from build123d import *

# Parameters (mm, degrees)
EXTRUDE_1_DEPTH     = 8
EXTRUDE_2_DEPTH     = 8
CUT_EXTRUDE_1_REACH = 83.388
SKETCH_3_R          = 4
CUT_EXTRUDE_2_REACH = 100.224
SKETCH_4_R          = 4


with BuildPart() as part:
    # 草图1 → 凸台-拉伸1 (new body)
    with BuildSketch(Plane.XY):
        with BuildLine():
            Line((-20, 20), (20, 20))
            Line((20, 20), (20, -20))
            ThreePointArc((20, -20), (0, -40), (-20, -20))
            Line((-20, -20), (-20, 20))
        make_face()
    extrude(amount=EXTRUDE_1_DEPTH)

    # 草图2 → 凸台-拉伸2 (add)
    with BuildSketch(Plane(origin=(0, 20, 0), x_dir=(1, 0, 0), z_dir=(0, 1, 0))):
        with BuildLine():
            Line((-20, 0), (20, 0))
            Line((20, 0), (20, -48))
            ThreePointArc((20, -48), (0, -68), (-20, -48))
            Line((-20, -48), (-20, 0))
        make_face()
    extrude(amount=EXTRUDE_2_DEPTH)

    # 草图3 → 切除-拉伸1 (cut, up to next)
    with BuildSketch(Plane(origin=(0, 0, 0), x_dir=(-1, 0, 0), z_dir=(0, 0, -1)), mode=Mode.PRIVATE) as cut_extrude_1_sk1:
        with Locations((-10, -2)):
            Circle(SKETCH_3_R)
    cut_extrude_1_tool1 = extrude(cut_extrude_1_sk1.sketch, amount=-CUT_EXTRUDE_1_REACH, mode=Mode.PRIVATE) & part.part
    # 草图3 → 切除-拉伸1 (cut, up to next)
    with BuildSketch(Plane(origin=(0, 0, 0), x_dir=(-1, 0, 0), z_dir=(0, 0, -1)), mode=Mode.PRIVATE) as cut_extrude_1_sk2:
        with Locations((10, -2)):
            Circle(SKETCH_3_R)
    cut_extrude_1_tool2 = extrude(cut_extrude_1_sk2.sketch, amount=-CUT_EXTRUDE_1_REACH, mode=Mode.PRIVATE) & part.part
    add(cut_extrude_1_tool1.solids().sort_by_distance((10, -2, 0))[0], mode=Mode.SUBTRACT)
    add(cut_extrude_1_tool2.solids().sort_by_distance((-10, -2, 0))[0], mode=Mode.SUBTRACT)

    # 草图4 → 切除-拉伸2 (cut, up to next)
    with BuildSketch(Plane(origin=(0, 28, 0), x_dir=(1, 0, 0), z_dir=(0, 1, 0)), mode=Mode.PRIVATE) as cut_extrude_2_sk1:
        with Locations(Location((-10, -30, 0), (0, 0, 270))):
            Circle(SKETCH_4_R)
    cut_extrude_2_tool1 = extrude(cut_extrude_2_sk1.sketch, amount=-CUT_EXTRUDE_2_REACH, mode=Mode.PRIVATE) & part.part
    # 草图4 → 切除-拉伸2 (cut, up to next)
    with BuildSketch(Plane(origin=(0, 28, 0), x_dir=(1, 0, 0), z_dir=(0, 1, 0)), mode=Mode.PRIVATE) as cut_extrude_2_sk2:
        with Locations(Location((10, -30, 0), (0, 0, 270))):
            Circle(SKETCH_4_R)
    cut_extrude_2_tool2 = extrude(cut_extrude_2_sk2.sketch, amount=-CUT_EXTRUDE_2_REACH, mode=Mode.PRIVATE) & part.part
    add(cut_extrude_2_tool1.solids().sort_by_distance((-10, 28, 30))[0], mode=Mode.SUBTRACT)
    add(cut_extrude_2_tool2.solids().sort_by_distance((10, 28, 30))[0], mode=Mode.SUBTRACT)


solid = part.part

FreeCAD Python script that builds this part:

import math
import FreeCAD as App
import Part
import Sketcher

V = App.Vector

doc = App.newDocument("Part")
body = doc.addObject("PartDesign::Body", "Body")

# Sketch on XY plane
sketch1 = doc.addObject("Sketcher::SketchObject", "Sketch")
body.addObject(sketch1)
sketch1.AttachmentSupport = (doc.XY_Plane, [""])
sketch1.MapMode = "FlatFace"
sketch1.addGeometry([
    Part.LineSegment(V(20, 20, 0), V(-20, 20, 0)),
    Part.LineSegment(V(-20, 20, 0), V(-20, -20, 0)),
    Part.ArcOfCircle(Part.Circle(V(0, -20, 0), V(0, 0, 1), 20), math.radians(180), math.radians(360)),
    Part.LineSegment(V(20, -20, 0), V(20, 20, 0)),
], False)
sketch1.addConstraint([
    Sketcher.Constraint("Coincident", 0, 2, 1, 1),
    Sketcher.Constraint("Tangent", 1, 2, 2, 1),
    Sketcher.Constraint("Tangent", 2, 2, 3, 1),
    Sketcher.Constraint("Coincident", 3, 2, 0, 1),
    Sketcher.Constraint("Horizontal", 0),
    Sketcher.Constraint("Vertical", 1),
    Sketcher.Constraint("Vertical", 3),
    Sketcher.Constraint("Symmetric", 0, 2, 2, 2, -1, 1),
    Sketcher.Constraint("Equal", 0, 1),
    Sketcher.Constraint("Radius", 2, 20.0),
])
pad1 = doc.addObject("PartDesign::Pad", "Pad")
body.addObject(pad1)
pad1.Profile = sketch1
pad1.Length = 8

# Sketch on XZ plane
sketch2 = doc.addObject("Sketcher::SketchObject", "Sketch001")
body.addObject(sketch2)
sketch2.AttachmentSupport = (doc.XZ_Plane, [""])
sketch2.MapMode = "FlatFace"
sketch2.AttachmentOffset = App.Placement(V(0, 0, -20), App.Rotation())
sketch2.addGeometry([
    Part.LineSegment(V(20, 0, 0), V(-20, 0, 0)),
    Part.LineSegment(V(-20, 0, 0), V(-20, 48, 0)),
    Part.ArcOfCircle(Part.Circle(V(0, 48, 0), V(0, 0, 1), 20), math.radians(0), math.radians(180)),
    Part.LineSegment(V(20, 48, 0), V(20, 0, 0)),
], False)
sketch2.addConstraint([
    Sketcher.Constraint("Coincident", 0, 2, 1, 1),
    Sketcher.Constraint("Tangent", 1, 2, 2, 2),
    Sketcher.Constraint("Tangent", 2, 1, 3, 1),
    Sketcher.Constraint("Coincident", 3, 2, 0, 1),
    Sketcher.Constraint("Horizontal", 0),
    Sketcher.Constraint("Vertical", 1),
    Sketcher.Constraint("Vertical", 3),
    Sketcher.Constraint("Symmetric", 0, 2, 3, 2, -1, 1),
    Sketcher.Constraint("Radius", 2, 20.0),
    Sketcher.Constraint("DistanceY", 1, 1, 1, 2, 48.0),
])
pad2 = doc.addObject("PartDesign::Pad", "Pad001")
body.addObject(pad2)
pad2.Profile = sketch2
pad2.Length = 8
pad2.Reversed = True

# Sketch on XY plane
sketch3 = doc.addObject("Sketcher::SketchObject", "Sketch002")
body.addObject(sketch3)
sketch3.AttachmentSupport = (doc.XY_Plane, [""])
sketch3.MapMode = "FlatFace"
sketch3.addGeometry(Part.Circle(V(10, -2, 0), V(0, 0, 1), 4), False)
sketch3.addConstraint([
    Sketcher.Constraint("Diameter", 0, 8.0),
    Sketcher.Constraint("DistanceX", -1, 1, 0, 3, 10.0),
    Sketcher.Constraint("DistanceY", 0, 3, -1, 1, 2.0),
])
pocket1 = doc.addObject("PartDesign::Pocket", "Pocket")
body.addObject(pocket1)
pocket1.Profile = sketch3
pocket1.Type = "UpToFirst"
pocket1.Reversed = True

# Sketch on XY plane
sketch4 = doc.addObject("Sketcher::SketchObject", "Sketch003")
body.addObject(sketch4)
sketch4.AttachmentSupport = (doc.XY_Plane, [""])
sketch4.MapMode = "FlatFace"
sketch4.addGeometry(Part.Circle(V(-10, -2, 0), V(0, 0, 1), 4), False)
sketch4.addConstraint([
    Sketcher.Constraint("Diameter", 0, 8.0),
    Sketcher.Constraint("DistanceX", 0, 3, -1, 1, 10.0),
    Sketcher.Constraint("DistanceY", 0, 3, -1, 1, 2.0),
])
pocket2 = doc.addObject("PartDesign::Pocket", "Pocket001")
body.addObject(pocket2)
pocket2.Profile = sketch4
pocket2.Type = "UpToFirst"
pocket2.Reversed = True

# Sketch on XZ plane
sketch5 = doc.addObject("Sketcher::SketchObject", "Sketch004")
body.addObject(sketch5)
sketch5.AttachmentSupport = (doc.XZ_Plane, [""])
sketch5.MapMode = "FlatFace"
sketch5.AttachmentOffset = App.Placement(V(0, 0, -28), App.Rotation())
sketch5.addGeometry(Part.Circle(V(-10, 30, 0), V(0, 0, 1), 4), False)
sketch5.addConstraint([
    Sketcher.Constraint("Diameter", 0, 8.0),
    Sketcher.Constraint("DistanceX", 0, 3, -1, 1, 10.0),
    Sketcher.Constraint("DistanceY", -1, 1, 0, 3, 30.0),
])
pocket3 = doc.addObject("PartDesign::Pocket", "Pocket002")
body.addObject(pocket3)
pocket3.Profile = sketch5
pocket3.Type = "UpToFirst"
pocket3.Reversed = True

# Sketch on XZ plane
sketch6 = doc.addObject("Sketcher::SketchObject", "Sketch005")
body.addObject(sketch6)
sketch6.AttachmentSupport = (doc.XZ_Plane, [""])
sketch6.MapMode = "FlatFace"
sketch6.AttachmentOffset = App.Placement(V(0, 0, -28), App.Rotation())
sketch6.addGeometry(Part.Circle(V(10, 30, 0), V(0, 0, 1), 4), False)
sketch6.addConstraint([
    Sketcher.Constraint("Diameter", 0, 8.0),
    Sketcher.Constraint("DistanceX", -1, 1, 0, 3, 10.0),
    Sketcher.Constraint("DistanceY", -1, 1, 0, 3, 30.0),
])
pocket4 = doc.addObject("PartDesign::Pocket", "Pocket003")
body.addObject(pocket4)
pocket4.Profile = sketch6
pocket4.Type = "UpToFirst"
pocket4.Reversed = True

doc.recompute()
